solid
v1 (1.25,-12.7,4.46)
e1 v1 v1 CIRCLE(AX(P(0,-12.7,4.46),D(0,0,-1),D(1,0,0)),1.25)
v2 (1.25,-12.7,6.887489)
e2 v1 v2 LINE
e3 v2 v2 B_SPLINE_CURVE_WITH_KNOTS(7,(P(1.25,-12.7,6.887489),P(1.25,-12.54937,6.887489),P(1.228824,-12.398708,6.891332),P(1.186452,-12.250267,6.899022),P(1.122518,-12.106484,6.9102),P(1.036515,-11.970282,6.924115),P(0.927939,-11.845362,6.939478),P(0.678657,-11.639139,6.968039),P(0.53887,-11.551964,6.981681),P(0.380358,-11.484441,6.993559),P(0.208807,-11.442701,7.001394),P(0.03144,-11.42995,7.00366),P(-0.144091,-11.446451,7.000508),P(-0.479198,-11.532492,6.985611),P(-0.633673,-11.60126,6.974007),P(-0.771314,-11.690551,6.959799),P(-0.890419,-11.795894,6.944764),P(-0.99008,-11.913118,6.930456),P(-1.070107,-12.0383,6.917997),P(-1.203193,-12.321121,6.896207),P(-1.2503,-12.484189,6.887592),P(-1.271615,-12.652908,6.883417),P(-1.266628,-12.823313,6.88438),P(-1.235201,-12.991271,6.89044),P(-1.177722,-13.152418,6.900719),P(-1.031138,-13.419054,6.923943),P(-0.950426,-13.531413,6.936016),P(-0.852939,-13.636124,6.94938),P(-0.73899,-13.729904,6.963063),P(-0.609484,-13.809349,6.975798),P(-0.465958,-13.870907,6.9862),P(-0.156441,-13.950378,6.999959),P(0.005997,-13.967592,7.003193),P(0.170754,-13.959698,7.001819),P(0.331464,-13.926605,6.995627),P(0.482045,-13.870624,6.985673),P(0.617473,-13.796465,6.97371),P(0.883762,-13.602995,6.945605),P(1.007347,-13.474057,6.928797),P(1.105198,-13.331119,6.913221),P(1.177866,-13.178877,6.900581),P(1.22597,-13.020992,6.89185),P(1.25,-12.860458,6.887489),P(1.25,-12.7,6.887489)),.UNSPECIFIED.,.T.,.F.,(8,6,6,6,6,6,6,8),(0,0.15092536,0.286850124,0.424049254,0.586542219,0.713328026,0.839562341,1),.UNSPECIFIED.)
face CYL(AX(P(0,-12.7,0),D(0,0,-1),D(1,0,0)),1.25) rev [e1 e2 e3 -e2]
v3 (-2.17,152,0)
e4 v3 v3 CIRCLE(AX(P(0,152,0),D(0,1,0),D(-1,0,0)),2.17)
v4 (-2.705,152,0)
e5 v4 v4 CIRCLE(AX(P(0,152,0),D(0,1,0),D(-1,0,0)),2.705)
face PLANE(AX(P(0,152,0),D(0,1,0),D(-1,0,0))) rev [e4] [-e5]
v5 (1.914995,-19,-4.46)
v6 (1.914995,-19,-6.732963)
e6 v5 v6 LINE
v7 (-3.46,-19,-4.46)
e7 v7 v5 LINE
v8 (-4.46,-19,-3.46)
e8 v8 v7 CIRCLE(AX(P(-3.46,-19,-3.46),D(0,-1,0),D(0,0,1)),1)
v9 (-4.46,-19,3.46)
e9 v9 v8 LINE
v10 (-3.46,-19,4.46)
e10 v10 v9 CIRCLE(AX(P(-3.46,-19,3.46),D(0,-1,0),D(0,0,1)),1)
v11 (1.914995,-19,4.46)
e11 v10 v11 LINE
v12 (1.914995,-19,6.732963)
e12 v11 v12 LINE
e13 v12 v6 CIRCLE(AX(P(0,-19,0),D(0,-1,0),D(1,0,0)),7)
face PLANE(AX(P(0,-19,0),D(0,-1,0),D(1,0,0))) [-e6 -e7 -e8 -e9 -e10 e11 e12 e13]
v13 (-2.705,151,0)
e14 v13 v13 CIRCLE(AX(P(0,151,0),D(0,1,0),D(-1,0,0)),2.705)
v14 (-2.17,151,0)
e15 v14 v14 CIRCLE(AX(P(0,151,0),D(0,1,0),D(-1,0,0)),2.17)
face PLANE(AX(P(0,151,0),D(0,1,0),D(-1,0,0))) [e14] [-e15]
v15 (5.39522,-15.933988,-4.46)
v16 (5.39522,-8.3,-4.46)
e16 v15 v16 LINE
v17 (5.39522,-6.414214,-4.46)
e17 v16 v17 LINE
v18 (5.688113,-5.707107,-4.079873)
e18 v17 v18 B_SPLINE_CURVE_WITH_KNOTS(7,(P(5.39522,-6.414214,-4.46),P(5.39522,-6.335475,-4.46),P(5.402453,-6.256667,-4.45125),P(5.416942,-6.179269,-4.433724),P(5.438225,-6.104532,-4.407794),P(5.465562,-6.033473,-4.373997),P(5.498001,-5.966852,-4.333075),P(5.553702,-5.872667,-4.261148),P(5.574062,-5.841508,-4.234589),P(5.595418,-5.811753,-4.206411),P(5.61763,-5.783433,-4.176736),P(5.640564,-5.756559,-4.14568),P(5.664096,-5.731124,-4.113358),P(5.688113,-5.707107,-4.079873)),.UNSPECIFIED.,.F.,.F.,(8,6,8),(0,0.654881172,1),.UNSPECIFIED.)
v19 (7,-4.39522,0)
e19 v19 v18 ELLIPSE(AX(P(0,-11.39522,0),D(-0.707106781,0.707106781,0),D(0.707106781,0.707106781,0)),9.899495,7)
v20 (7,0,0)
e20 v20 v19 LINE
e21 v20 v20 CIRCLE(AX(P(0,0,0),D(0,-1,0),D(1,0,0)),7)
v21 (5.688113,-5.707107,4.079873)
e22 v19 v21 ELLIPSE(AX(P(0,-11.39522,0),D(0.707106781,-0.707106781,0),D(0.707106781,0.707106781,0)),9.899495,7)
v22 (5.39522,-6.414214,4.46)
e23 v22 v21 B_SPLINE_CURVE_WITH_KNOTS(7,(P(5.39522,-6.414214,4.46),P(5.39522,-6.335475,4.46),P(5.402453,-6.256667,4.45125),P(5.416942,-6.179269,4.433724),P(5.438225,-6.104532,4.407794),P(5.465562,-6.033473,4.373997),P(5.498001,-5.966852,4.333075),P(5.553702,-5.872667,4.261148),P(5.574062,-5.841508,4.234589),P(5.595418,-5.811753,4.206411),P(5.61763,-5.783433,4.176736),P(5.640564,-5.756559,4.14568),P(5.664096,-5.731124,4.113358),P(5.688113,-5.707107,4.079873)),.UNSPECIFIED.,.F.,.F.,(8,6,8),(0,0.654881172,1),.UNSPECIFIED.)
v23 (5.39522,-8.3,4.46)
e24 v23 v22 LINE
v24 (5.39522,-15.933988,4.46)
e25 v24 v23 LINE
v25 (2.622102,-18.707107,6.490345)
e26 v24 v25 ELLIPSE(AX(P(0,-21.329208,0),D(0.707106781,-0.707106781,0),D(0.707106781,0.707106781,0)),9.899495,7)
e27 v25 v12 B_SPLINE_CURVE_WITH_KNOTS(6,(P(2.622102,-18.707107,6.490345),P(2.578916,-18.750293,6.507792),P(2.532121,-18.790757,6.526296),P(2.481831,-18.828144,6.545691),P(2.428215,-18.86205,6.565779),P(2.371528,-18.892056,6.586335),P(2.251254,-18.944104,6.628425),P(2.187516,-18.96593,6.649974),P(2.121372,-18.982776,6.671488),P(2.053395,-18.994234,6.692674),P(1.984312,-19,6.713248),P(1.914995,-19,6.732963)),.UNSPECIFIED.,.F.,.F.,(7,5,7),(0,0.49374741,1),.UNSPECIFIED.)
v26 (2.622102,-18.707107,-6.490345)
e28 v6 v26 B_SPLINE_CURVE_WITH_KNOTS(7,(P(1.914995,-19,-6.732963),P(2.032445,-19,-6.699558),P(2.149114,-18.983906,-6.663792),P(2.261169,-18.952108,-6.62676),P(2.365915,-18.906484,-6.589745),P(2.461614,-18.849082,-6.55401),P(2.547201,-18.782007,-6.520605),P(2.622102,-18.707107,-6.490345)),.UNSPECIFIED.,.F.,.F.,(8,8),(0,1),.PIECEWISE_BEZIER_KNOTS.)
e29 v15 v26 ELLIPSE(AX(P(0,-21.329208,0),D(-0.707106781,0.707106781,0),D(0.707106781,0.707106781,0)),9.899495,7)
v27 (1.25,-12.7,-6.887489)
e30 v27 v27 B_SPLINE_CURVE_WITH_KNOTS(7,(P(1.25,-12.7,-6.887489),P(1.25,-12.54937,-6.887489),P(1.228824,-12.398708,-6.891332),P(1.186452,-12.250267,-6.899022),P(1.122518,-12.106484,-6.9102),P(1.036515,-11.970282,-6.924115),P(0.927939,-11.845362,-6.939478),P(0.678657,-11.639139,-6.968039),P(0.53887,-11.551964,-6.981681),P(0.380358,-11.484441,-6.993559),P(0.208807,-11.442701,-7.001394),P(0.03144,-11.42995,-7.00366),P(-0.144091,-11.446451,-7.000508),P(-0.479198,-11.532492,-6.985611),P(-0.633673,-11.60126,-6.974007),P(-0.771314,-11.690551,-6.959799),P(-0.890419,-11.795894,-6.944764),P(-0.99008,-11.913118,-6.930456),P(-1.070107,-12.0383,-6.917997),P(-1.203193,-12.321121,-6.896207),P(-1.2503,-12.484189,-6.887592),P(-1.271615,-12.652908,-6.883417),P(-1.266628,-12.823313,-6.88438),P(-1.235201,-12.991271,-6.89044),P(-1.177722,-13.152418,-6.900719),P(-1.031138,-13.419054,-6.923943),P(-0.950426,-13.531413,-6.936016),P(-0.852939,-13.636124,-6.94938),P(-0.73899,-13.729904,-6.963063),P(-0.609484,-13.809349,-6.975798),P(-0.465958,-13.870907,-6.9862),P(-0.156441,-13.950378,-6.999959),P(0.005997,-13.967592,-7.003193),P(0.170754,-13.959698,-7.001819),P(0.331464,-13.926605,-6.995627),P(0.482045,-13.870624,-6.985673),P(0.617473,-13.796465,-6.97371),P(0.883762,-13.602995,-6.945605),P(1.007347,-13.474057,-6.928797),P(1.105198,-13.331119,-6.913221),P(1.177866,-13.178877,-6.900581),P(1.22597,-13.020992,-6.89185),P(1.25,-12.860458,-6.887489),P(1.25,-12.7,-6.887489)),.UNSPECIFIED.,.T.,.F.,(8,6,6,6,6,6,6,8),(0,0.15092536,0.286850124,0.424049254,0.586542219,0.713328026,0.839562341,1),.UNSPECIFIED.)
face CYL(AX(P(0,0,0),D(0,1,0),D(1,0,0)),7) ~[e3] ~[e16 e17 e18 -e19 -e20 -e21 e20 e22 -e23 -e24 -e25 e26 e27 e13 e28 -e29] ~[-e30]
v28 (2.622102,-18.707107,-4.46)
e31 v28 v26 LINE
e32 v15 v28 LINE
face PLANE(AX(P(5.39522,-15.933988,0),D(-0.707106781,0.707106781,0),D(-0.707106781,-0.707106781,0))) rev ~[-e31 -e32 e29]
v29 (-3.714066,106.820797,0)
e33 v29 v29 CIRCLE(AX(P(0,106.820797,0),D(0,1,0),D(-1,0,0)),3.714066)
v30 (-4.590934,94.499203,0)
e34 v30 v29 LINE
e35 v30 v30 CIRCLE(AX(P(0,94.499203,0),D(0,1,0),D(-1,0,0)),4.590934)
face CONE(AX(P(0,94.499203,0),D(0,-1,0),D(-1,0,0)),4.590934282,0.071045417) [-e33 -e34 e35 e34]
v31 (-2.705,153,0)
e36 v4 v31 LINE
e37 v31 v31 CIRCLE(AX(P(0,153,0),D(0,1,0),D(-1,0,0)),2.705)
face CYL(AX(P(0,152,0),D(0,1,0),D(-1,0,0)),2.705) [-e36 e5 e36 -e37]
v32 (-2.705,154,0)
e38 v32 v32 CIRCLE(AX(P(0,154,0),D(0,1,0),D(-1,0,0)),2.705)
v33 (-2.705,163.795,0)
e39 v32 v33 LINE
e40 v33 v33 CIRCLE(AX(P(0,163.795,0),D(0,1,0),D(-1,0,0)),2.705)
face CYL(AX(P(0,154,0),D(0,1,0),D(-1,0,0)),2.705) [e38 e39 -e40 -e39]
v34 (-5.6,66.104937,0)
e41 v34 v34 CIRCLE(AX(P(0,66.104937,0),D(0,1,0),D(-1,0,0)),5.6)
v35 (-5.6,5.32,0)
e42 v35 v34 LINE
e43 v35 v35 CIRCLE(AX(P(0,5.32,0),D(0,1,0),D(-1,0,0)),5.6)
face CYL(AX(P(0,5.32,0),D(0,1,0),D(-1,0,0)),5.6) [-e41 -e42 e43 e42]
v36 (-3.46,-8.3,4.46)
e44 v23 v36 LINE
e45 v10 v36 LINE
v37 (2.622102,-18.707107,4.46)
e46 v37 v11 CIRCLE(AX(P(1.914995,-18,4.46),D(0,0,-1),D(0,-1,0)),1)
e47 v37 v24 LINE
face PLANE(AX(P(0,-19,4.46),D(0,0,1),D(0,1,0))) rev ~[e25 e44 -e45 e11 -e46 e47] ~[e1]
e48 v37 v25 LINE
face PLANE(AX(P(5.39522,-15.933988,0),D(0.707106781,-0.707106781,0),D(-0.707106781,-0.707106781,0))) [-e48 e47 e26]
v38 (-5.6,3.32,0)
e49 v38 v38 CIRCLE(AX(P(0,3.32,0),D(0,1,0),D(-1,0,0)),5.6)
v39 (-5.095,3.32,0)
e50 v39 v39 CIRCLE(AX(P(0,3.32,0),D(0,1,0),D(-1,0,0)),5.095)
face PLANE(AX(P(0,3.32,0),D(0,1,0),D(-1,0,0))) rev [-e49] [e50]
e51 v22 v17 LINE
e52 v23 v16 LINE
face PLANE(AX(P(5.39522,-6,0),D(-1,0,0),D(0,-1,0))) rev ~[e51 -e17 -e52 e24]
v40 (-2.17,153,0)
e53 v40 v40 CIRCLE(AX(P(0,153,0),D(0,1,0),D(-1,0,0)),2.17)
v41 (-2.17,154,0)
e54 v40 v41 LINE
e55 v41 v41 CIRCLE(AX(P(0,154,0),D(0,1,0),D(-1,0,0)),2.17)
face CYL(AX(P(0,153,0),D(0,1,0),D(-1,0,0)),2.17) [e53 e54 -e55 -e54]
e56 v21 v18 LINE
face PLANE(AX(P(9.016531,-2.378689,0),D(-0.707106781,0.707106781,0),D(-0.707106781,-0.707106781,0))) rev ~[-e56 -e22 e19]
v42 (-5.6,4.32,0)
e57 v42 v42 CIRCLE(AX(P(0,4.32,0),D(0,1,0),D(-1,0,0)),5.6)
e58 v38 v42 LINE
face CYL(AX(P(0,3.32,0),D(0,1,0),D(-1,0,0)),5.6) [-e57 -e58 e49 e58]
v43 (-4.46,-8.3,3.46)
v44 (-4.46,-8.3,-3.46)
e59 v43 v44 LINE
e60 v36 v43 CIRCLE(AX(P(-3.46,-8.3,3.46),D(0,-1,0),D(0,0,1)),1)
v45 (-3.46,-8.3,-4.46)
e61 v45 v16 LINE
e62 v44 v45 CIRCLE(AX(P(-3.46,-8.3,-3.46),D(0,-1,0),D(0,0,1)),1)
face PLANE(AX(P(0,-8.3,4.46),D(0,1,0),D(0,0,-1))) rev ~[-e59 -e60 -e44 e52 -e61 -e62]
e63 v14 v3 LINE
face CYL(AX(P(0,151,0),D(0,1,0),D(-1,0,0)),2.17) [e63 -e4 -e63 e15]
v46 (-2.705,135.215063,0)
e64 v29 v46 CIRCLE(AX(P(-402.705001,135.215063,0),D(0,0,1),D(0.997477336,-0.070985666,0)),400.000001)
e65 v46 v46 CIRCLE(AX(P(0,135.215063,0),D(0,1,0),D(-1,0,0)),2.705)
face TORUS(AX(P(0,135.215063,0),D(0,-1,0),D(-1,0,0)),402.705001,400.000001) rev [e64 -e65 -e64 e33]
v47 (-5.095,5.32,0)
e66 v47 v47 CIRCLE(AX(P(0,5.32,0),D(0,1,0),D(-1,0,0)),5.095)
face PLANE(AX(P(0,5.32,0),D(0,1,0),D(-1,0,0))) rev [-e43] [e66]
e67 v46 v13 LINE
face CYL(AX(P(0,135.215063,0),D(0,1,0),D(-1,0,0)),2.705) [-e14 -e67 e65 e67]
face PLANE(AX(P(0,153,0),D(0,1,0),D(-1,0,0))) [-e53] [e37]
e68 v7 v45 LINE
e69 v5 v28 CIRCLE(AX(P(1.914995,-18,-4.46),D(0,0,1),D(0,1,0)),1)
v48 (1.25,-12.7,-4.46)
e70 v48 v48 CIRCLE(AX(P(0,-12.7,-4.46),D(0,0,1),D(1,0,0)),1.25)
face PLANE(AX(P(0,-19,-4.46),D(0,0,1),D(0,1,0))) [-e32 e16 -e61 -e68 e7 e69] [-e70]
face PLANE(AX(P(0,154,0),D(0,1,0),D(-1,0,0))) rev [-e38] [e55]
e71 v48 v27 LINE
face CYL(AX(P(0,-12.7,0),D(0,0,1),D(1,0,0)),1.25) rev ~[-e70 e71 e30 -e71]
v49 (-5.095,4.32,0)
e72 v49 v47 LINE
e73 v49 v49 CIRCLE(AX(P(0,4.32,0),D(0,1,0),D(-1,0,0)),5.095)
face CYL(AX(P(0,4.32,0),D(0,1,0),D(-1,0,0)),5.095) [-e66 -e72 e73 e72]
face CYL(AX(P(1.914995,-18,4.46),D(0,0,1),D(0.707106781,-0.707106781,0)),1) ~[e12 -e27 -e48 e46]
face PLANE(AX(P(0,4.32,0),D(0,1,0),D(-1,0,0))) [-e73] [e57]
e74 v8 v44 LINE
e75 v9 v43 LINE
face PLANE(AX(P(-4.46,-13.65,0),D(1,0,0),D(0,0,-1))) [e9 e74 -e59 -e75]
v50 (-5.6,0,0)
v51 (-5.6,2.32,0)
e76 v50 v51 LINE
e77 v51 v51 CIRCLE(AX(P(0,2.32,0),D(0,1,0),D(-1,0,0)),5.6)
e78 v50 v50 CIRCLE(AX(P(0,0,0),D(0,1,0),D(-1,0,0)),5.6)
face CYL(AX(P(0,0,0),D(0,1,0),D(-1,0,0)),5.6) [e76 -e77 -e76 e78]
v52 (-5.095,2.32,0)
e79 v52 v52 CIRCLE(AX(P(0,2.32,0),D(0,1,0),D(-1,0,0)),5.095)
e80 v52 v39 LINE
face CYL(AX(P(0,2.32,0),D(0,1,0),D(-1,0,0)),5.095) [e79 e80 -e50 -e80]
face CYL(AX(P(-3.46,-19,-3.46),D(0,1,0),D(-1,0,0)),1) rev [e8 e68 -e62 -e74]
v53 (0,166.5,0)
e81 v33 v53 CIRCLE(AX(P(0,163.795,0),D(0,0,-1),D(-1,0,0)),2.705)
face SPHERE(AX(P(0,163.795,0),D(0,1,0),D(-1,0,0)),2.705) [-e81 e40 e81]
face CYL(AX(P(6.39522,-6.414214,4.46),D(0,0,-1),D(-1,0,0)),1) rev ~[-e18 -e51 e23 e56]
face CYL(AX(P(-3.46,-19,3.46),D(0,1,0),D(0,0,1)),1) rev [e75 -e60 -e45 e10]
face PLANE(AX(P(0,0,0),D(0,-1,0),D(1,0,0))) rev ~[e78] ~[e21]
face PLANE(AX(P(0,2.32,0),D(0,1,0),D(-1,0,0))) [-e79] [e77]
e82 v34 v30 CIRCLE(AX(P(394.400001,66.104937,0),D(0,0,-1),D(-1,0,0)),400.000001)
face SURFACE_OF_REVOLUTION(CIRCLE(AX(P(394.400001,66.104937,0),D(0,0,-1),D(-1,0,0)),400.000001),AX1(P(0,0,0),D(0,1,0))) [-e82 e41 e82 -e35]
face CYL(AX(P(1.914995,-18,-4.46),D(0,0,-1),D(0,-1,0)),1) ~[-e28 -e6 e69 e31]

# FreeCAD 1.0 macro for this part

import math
import FreeCAD as App
import Part
import Sketcher
Q = App.Units.Quantity


def edges_at(feature, points):
    """Names of the edges that pass closest to the given points."""
    edges = feature.Shape.Edges
    near = lambda p: min(range(len(edges)), key=lambda i: edges[i].distToShape(Part.Vertex(*p))[0])
    return sorted({f"Edge{near(p) + 1}" for p in points})

doc = App.newDocument("Part")
body = doc.addObject("PartDesign::Body", "Body")

# Sketch on XY plane
sketch1 = body.newObject("Sketcher::SketchObject", "Sketch")
sketch1.AttachmentSupport = (doc.getObject("XY_Plane"), [""])
sketch1.MapMode = "FlatFace"
sketch1.addGeometry([
    Part.LineSegment(App.Vector(-5.6, 0, 0), App.Vector(0, 0, 0)),  # 0
    Part.LineSegment(App.Vector(0, 0, 0), App.Vector(0, 166.5, 0)),  # 1
    Part.ArcOfCircle(Part.Circle(App.Vector(0, 163.8, 0), App.Vector(0, 0, 1), 2.7), math.radians(90), math.radians(180)),  # 2
    Part.LineSegment(App.Vector(-2.7, 163.8, 0), App.Vector(-2.7, 154, 0)),  # 3
    Part.LineSegment(App.Vector(-2.7, 154, 0), App.Vector(-2.2, 154, 0)),  # 4
    Part.LineSegment(App.Vector(-2.2, 154, 0), App.Vector(-2.2, 153, 0)),  # 5
    Part.LineSegment(App.Vector(-2.2, 153, 0), App.Vector(-2.7, 153, 0)),  # 6
    Part.LineSegment(App.Vector(-2.7, 153, 0), App.Vector(-2.7, 152, 0)),  # 7
    Part.LineSegment(App.Vector(-2.7, 152, 0), App.Vector(-2.2, 152, 0)),  # 8
    Part.LineSegment(App.Vector(-2.2, 152, 0), App.Vector(-2.2, 151, 0)),  # 9
    Part.LineSegment(App.Vector(-2.2, 151, 0), App.Vector(-2.7, 151, 0)),  # 10
    Part.LineSegment(App.Vector(-2.7, 151, 0), App.Vector(-2.7, 135.2, 0)),  # 11
    Part.ArcOfCircle(Part.Circle(App.Vector(-402.7, 135.2, 0), App.Vector(0, 0, 1), 400), math.radians(-4.07), math.radians(0)),  # 12
    Part.LineSegment(App.Vector(-3.7, 106.8, 0), App.Vector(-4.6, 94.5, 0)),  # 13
    Part.ArcOfCircle(Part.Circle(App.Vector(394.4, 66.1, 0), App.Vector(0, 0, 1), 400), math.radians(175.93), math.radians(180)),  # 14
    Part.LineSegment(App.Vector(-5.6, 66.1, 0), App.Vector(-5.6, 5.3, 0)),  # 15
    Part.LineSegment(App.Vector(-5.6, 5.3, 0), App.Vector(-5.1, 5.3, 0)),  # 16
    Part.LineSegment(App.Vector(-5.1, 5.3, 0), App.Vector(-5.1, 4.3, 0)),  # 17
    Part.LineSegment(App.Vector(-5.1, 4.3, 0), App.Vector(-5.6, 4.3, 0)),  # 18
    Part.LineSegment(App.Vector(-5.6, 4.3, 0), App.Vector(-5.6, 3.3, 0)),  # 19
    Part.LineSegment(App.Vector(-5.6, 3.3, 0), App.Vector(-5.1, 3.3, 0)),  # 20
    Part.LineSegment(App.Vector(-5.1, 3.3, 0), App.Vector(-5.1, 2.3, 0)),  # 21
    Part.LineSegment(App.Vector(-5.1, 2.3, 0), App.Vector(-5.6, 2.3, 0)),  # 22
    Part.LineSegment(App.Vector(-5.6, 2.3, 0), App.Vector(-5.6, 0, 0)),  # 23
], False)
sketch1.addConstraint([
    Sketcher.Constraint("Coincident", 0, 2, 1, 1),
    Sketcher.Constraint("Coincident", 1, 2, 2, 1),
    Sketcher.Constraint("Tangent", 2, 2, 3, 1),
    Sketcher.Constraint("Coincident", 3, 2, 4, 1),
    Sketcher.Constraint("Coincident", 4, 2, 5, 1),
    Sketcher.Constraint("Coincident", 5, 2, 6, 1),
    Sketcher.Constraint("Coincident", 6, 2, 7, 1),
    Sketcher.Constraint("Coincident", 7, 2, 8, 1),
    Sketcher.Constraint("Coincident", 8, 2, 9, 1),
    Sketcher.Constraint("Coincident", 9, 2, 10, 1),
    Sketcher.Constraint("Coincident", 10, 2, 11, 1),
    Sketcher.Constraint("Tangent", 11, 2, 12, 2),
    Sketcher.Constraint("Tangent", 12, 1, 13, 1),
    Sketcher.Constraint("Tangent", 13, 2, 14, 1),
    Sketcher.Constraint("Tangent", 14, 2, 15, 1),
    Sketcher.Constraint("Coincident", 15, 2, 16, 1),
    Sketcher.Constraint("Coincident", 16, 2, 17, 1),
    Sketcher.Constraint("Coincident", 17, 2, 18, 1),
    Sketcher.Constraint("Coincident", 18, 2, 19, 1),
    Sketcher.Constraint("Coincident", 19, 2, 20, 1),
    Sketcher.Constraint("Coincident", 20, 2, 21, 1),
    Sketcher.Constraint("Coincident", 21, 2, 22, 1),
    Sketcher.Constraint("Coincident", 22, 2, 23, 1),
    Sketcher.Constraint("Coincident", 23, 2, 0, 1),
    Sketcher.Constraint("Horizontal", 0),
    Sketcher.Constraint("Vertical", 1),
    Sketcher.Constraint("Vertical", 3),
    Sketcher.Constraint("Horizontal", 4),
    Sketcher.Constraint("Vertical", 5),
    Sketcher.Constraint("Horizontal", 6),
    Sketcher.Constraint("Vertical", 7),
    Sketcher.Constraint("Horizontal", 8),
    Sketcher.Constraint("Vertical", 9),
    Sketcher.Constraint("Horizontal", 10),
    Sketcher.Constraint("Vertical", 11),
    Sketcher.Constraint("Vertical", 15),
    Sketcher.Constraint("Horizontal", 16),
    Sketcher.Constraint("Vertical", 17),
    Sketcher.Constraint("Horizontal", 18),
    Sketcher.Constraint("Vertical", 19),
    Sketcher.Constraint("Horizontal", 20),
    Sketcher.Constraint("Vertical", 21),
    Sketcher.Constraint("Horizontal", 22),
    Sketcher.Constraint("Vertical", 23),
    Sketcher.Constraint("Coincident", 0, 2, -1, 1),
    Sketcher.Constraint("Equal", 12, 14),
    Sketcher.Constraint("PointOnObject", 2, 3, -2),
    Sketcher.Constraint("Vertical", 3, 2, 6, 2),
    Sketcher.Constraint("Vertical", 5, 2, 8, 2),
    Sketcher.Constraint("Vertical", 7, 2, 10, 2),
    Sketcher.Constraint("Vertical", 15, 2, 18, 2),
    Sketcher.Constraint("Vertical", 17, 2, 20, 2),
    Sketcher.Constraint("Vertical", 19, 2, 22, 2),
    Sketcher.Constraint("Equal", 5, 7),
    Sketcher.Constraint("Equal", 7, 9),
    Sketcher.Constraint("Equal", 9, 17),
    Sketcher.Constraint("Equal", 17, 19),
    Sketcher.Constraint("Equal", 19, 21),
    Sketcher.Constraint("Radius", 12, 400.000001),
    Sketcher.Constraint("DistanceY", 5, 2, 5, 1, 1.0),
    Sketcher.Constraint("DistanceX", 0, 1, 0, 2, 5.6),
    Sketcher.Constraint("DistanceY", 1, 1, 1, 2, 166.5),
    Sketcher.Constraint("DistanceY", -1, 1, 3, 2, 154.0),
    Sketcher.Constraint("Radius", 2, 2.705),
    Sketcher.Constraint("DistanceY", 23, 2, 23, 1, 2.32),
    Sketcher.Constraint("DistanceX", 4, 1, 4, 2, 0.535),
    Sketcher.Constraint("DistanceX", 16, 1, 16, 2, 0.505),
    Sketcher.Constraint("DistanceY", 11, 2, 11, 1, 15.784937),
    Sketcher.Constraint("DistanceY", 15, 2, 15, 1, 60.784937),
])
revolution = body.newObject("PartDesign::Revolution", "Revolution")
revolution.Profile = sketch1
revolution.ReferenceAxis = (sketch1, ["V_Axis"])
revolution.Angle = 360

# Sketch on XZ plane
sketch2 = body.newObject("Sketcher::SketchObject", "Sketch001")
sketch2.AttachmentSupport = (doc.getObject("XZ_Plane"), [""])
sketch2.MapMode = "FlatFace"
sketch2.addGeometry(Part.Circle(App.Vector(0, 0, 0), App.Vector(0, 0, 1), 7), False)
sketch2.addConstraint([
    Sketcher.Constraint("Coincident", 0, 3, -1, 1),
    Sketcher.Constraint("Diameter", 0, 14.0),
])
pad1 = body.newObject("PartDesign::Pad", "Pad")
pad1.Profile = sketch2
pad1.Length = 19

# Sketch on YZ plane
sketch3 = body.newObject("Sketcher::SketchObject", "Sketch002")
sketch3.AttachmentSupport = (doc.getObject("YZ_Plane"), [""])
sketch3.MapMode = "FlatFace"
sketch3.addGeometry([
    Part.LineSegment(App.Vector(-8, 4, 0), App.Vector(-19, 4, 0)),
    Part.LineSegment(App.Vector(-19, 4, 0), App.Vector(-19, -4, 0)),
    Part.LineSegment(App.Vector(-19, -4, 0), App.Vector(-8, -4, 0)),
    Part.LineSegment(App.Vector(-8, -4, 0), App.Vector(-8, 4, 0)),
], False)
sketch3.addConstraint([
    Sketcher.Constraint("Coincident", 0, 2, 1, 1),
    Sketcher.Constraint("Coincident", 1, 2, 2, 1),
    Sketcher.Constraint("Coincident", 2, 2, 3, 1),
    Sketcher.Constraint("Coincident", 3, 2, 0, 1),
    Sketcher.Constraint("Horizontal", 0),
    Sketcher.Constraint("Vertical", 1),
    Sketcher.Constraint("Horizontal", 2),
    Sketcher.Constraint("Vertical", 3),
    Sketcher.Constraint("DistanceX", 0, 2, 0, 1, 10.7),
    Sketcher.Constraint("DistanceX", 0, 2, -1, 1, 19.0),
    Sketcher.Constraint("DistanceY", 1, 2, 1, 1, 8.92),
    Sketcher.Constraint("DistanceY", -1, 1, 0, 2, 4.46),
])
pocket1 = body.newObject("PartDesign::Pocket", "Pocket")
pocket1.Profile = sketch3
pocket1.Type = "TwoLengths"
pocket1.Length = 9
pocket1.Length2 = 4.46
pocket1.Reversed = True

# Sketch on XY plane
sketch4 = body.newObject("Sketcher::SketchObject", "Sketch003")
sketch4.AttachmentSupport = (doc.getObject("XY_Plane"), [""])
sketch4.MapMode = "FlatFace"
sketch4.addGeometry([
    Part.Circle(App.Vector(0, -12.7, 0), App.Vector(0, 0, 1), 1.2),  # 0
    Part.LineSegment(App.Vector(5.4, -6, 0), App.Vector(5.4, -15.9, 0)),  # 1
    Part.LineSegment(App.Vector(5.4, -15.9, 0), App.Vector(0.8, -20.5, 0)),  # 2
    Part.LineSegment(App.Vector(0.8, -20.5, 0), App.Vector(9, -20.5, 0)),  # 3
    Part.LineSegment(App.Vector(9, -20.5, 0), App.Vector(9, -2.4, 0)),  # 4
    Part.LineSegment(App.Vector(9, -2.4, 0), App.Vector(5.4, -6, 0)),  # 5
], False)
sketch4.addConstraint([
    Sketcher.Constraint("Coincident", 1, 2, 2, 1),
    Sketcher.Constraint("Coincident", 2, 2, 3, 1),
    Sketcher.Constraint("Coincident", 3, 2, 4, 1),
    Sketcher.Constraint("Coincident", 4, 2, 5, 1),
    Sketcher.Constraint("Coincident", 5, 2, 1, 1),
    Sketcher.Constraint("Vertical", 1),
    Sketcher.Constraint("Horizontal", 3),
    Sketcher.Constraint("Vertical", 4),
    Sketcher.Constraint("PointOnObject", 0, 3, -2),
    Sketcher.Constraint("Parallel", 2, 5),
    Sketcher.Constraint("Diameter", 0, 2.5),
    Sketcher.Constraint("Angle", 2, Q("-135 deg")),
    Sketcher.Constraint("DistanceY", 5, 2, -1, 1, 6.0),
    Sketcher.Constraint("DistanceY", 0, 3, -1, 1, 12.7),
    Sketcher.Constraint("Distance", 2, 6.5203),
    Sketcher.Constraint("DistanceX", 3, 1, 3, 2, 8.231859),
    Sketcher.Constraint("DistanceY", 1, 2, 1, 1, 9.933988),
    Sketcher.Constraint("DistanceX", -1, 1, 1, 2, 5.39522),
])
pocket2 = body.newObject("PartDesign::Pocket", "Pocket001")
pocket2.Profile = sketch4
pocket2.Type = "ThroughAll"
pocket2.Midplane = True
doc.recompute()

fillet = body.newObject("PartDesign::Fillet", "Fillet")
fillet.Base = (pocket2, edges_at(pocket2, [
    (5.395, -6, 0),
    (2.329, -19, -5.531),
    (2.329, -19, 5.531),
    (-4.46, -13.65, -4.46),
    (-4.46, -13.65, 4.46),
]))
fillet.Radius = 1

doc.recompute()
